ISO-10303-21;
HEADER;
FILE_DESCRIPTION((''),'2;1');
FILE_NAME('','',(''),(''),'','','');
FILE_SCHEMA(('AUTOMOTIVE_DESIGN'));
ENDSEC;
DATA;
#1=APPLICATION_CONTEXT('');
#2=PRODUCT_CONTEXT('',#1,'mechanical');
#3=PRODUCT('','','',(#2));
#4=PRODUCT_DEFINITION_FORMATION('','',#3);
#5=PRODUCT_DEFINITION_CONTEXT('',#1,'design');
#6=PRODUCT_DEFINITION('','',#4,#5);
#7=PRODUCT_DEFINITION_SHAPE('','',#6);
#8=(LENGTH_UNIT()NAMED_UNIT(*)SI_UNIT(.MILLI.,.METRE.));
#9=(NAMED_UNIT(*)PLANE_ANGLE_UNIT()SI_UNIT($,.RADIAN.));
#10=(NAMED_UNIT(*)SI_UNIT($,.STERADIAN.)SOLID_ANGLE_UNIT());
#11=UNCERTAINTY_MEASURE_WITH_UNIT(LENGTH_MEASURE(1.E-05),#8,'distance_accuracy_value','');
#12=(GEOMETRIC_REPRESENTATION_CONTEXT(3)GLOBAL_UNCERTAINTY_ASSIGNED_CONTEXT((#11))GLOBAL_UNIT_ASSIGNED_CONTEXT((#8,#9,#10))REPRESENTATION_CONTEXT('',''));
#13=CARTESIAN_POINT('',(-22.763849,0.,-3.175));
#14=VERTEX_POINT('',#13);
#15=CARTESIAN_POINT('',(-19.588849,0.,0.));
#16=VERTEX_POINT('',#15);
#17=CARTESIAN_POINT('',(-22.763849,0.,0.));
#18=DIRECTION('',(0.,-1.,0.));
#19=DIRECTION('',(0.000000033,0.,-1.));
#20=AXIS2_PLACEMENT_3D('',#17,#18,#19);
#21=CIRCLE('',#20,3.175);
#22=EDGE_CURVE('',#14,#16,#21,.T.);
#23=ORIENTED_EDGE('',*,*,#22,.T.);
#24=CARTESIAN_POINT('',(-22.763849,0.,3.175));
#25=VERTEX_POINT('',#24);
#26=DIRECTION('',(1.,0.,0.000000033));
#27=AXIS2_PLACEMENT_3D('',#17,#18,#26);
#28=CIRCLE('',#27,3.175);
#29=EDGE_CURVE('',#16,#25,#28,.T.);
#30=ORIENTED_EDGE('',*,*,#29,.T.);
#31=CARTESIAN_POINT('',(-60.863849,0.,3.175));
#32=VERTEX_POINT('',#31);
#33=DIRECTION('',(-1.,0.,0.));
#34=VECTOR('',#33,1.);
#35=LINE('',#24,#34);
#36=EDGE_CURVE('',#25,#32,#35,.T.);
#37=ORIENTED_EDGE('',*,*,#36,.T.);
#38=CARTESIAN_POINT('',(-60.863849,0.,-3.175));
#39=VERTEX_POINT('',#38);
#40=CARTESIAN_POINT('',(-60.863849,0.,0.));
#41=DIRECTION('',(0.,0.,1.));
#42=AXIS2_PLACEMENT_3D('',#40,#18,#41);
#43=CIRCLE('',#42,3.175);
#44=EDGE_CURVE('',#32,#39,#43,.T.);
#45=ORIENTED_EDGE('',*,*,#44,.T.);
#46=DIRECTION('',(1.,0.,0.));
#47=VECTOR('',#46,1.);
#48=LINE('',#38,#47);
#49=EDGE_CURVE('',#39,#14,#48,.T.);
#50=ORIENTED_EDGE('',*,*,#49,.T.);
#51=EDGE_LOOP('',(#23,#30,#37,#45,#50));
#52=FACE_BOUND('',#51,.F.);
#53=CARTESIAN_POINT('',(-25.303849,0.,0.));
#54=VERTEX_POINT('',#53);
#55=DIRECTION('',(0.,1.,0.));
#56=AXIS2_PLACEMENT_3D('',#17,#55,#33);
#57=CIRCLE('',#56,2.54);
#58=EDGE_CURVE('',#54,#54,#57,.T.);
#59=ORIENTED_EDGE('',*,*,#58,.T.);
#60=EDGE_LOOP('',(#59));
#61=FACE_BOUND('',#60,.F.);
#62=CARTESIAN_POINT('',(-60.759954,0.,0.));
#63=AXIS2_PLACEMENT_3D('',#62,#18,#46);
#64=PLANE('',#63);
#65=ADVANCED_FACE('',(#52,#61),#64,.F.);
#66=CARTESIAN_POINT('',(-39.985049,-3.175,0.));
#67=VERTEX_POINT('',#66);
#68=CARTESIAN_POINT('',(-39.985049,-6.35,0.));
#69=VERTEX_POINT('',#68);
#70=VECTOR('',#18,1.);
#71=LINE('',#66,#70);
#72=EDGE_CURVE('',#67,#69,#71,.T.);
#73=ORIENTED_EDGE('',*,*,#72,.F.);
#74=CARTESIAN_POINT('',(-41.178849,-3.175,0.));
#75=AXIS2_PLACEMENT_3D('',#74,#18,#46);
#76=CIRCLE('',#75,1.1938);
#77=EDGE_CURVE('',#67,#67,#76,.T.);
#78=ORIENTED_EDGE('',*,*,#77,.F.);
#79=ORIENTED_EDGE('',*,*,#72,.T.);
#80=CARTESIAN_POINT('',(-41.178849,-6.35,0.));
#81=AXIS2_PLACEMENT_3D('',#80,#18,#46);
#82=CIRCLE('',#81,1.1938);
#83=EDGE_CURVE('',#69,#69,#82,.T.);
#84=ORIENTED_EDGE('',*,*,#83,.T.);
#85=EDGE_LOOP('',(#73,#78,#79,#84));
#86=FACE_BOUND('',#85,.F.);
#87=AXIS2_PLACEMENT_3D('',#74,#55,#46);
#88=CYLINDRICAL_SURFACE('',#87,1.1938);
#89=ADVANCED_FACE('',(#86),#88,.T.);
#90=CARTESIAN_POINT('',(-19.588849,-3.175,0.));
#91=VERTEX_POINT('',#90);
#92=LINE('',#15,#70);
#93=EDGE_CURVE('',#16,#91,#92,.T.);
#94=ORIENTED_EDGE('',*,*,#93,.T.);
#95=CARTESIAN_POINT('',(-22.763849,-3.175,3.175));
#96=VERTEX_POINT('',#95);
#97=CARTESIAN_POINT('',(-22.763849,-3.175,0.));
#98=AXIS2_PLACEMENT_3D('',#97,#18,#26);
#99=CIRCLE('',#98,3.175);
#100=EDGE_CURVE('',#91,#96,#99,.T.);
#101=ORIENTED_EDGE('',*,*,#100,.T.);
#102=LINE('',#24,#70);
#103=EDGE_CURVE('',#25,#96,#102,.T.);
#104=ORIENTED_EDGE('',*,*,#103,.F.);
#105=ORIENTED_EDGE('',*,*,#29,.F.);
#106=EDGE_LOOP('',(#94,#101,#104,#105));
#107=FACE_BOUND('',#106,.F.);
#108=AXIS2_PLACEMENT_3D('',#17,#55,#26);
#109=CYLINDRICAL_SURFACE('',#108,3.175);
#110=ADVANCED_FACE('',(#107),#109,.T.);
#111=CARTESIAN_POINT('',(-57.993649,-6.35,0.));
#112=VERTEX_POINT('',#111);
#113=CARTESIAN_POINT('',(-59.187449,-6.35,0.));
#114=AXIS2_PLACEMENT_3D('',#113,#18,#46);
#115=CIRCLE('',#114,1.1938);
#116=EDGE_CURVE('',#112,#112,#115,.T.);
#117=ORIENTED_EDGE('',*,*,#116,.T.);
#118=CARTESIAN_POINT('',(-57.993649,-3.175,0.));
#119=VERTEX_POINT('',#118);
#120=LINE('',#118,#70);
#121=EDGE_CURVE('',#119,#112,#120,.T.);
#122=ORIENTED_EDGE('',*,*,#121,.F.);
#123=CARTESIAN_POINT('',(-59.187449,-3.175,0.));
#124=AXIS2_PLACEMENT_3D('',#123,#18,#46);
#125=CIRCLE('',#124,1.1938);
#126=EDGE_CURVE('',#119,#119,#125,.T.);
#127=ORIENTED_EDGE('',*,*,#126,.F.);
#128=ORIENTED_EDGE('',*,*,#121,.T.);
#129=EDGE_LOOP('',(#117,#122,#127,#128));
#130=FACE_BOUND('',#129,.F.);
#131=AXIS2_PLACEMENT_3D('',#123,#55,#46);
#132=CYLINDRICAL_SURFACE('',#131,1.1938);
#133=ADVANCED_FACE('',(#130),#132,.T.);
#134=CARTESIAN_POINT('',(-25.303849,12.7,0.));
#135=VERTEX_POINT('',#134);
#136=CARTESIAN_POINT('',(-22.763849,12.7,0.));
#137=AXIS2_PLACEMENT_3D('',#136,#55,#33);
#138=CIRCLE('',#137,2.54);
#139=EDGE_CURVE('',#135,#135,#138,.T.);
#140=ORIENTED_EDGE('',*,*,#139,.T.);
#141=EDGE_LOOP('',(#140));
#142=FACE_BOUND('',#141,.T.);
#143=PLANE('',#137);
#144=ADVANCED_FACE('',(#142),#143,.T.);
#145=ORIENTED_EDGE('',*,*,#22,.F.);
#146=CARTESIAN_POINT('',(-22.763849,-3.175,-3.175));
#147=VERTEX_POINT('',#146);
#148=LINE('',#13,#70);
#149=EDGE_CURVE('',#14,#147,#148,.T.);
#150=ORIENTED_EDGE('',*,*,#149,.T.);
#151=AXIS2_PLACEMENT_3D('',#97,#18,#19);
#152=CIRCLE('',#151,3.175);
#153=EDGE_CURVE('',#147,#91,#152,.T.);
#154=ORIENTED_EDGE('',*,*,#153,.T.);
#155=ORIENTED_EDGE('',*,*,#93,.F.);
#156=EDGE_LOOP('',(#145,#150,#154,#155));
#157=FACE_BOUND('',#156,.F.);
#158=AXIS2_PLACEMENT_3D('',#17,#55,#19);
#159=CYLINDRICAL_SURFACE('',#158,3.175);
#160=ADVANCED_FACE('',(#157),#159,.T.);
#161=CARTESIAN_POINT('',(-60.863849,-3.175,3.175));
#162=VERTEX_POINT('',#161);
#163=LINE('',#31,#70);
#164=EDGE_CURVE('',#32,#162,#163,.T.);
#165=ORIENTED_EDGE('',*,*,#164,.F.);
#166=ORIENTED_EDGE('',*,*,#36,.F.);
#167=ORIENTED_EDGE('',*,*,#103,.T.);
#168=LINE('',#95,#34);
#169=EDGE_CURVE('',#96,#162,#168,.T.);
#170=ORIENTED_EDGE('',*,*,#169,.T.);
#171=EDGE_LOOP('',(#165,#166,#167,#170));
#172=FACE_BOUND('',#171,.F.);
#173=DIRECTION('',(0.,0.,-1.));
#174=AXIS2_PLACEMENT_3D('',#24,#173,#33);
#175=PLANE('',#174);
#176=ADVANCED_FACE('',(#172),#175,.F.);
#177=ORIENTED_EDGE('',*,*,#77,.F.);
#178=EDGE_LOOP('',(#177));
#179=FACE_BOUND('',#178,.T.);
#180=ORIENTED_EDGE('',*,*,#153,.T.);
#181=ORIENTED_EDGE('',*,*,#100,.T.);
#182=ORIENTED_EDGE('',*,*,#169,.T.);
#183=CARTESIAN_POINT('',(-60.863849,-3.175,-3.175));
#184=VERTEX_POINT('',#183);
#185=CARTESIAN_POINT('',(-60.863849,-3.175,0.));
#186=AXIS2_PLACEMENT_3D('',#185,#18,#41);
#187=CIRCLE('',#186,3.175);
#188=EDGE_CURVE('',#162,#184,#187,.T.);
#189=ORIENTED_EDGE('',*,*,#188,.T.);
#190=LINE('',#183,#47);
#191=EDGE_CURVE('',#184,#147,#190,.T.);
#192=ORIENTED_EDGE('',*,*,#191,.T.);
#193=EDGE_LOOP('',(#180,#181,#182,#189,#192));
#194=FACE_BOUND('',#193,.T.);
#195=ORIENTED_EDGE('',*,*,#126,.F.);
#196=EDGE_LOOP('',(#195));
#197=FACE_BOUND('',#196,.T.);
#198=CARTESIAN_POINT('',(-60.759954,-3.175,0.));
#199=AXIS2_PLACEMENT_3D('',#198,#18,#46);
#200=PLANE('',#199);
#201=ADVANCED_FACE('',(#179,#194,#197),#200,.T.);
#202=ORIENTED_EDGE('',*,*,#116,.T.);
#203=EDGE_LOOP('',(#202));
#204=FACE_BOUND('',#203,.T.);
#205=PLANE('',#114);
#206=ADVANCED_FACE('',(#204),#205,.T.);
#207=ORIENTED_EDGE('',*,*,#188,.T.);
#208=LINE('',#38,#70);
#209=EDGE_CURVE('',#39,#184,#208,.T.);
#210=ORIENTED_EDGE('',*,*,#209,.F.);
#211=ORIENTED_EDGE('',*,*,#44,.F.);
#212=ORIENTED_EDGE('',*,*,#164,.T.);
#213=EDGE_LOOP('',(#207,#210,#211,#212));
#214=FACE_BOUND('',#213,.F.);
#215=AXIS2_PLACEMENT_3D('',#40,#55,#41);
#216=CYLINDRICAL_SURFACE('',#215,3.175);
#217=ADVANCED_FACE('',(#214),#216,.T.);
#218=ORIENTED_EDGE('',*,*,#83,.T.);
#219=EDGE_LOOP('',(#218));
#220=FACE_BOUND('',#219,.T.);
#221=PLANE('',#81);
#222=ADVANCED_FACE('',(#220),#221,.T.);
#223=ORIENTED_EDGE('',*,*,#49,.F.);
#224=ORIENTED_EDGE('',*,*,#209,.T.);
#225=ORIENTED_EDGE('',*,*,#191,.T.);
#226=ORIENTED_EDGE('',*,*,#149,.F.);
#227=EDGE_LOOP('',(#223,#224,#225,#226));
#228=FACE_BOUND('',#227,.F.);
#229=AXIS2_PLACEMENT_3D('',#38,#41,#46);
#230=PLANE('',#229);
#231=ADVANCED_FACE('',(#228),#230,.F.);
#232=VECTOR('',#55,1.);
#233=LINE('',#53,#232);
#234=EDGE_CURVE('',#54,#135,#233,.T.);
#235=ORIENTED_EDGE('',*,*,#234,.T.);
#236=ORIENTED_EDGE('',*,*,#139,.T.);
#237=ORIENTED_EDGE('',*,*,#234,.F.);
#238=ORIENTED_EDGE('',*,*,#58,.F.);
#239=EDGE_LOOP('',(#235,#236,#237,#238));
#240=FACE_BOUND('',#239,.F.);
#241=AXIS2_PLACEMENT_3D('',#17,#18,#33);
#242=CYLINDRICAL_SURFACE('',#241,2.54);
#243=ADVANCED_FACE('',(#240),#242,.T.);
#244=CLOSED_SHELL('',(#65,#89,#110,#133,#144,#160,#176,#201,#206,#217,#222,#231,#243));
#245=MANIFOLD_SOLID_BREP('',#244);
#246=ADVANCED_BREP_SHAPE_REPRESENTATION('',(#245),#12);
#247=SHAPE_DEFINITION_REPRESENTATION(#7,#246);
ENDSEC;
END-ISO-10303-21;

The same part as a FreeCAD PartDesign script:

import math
import FreeCAD as App
import Part
import Sketcher
Q = App.Units.Quantity

doc = App.newDocument("Part")
body = doc.addObject("PartDesign::Body", "Body")

sketch1 = body.newObject("Sketcher::SketchObject", "Sketch")
sketch1.AttachmentSupport = (doc.getObject("XZ_Plane"), [""])
sketch1.MapMode = "FlatFace"
sketch1.addGeometry([
    Part.ArcOfCircle(Part.Circle(App.Vector(-60.9, 0, 0), App.Vector(0, 0, 1), 3.2), math.radians(90), math.radians(270)),
    Part.LineSegment(App.Vector(-60.9, -3.2, 0), App.Vector(-22.8, -3.2, 0)),
    Part.ArcOfCircle(Part.Circle(App.Vector(-22.8, 0, 0), App.Vector(0, 0, 1), 3.2), math.radians(-90), math.radians(0)),
    Part.ArcOfCircle(Part.Circle(App.Vector(-22.8, 0, 0), App.Vector(0, 0, 1), 3.2), math.radians(0), math.radians(90)),
    Part.LineSegment(App.Vector(-22.8, 3.2, 0), App.Vector(-60.9, 3.2, 0)),
], False)
sketch1.addConstraint([
    Sketcher.Constraint("Tangent", 0, 2, 1, 1),
    Sketcher.Constraint("Tangent", 1, 2, 2, 1),
    Sketcher.Constraint("Tangent", 2, 2, 3, 1),
    Sketcher.Constraint("Tangent", 3, 2, 4, 1),
    Sketcher.Constraint("Tangent", 4, 2, 0, 1),
    Sketcher.Constraint("Horizontal", 1),
    Sketcher.Constraint("Horizontal", 4),
    Sketcher.Constraint("Equal", 0, 2),
    Sketcher.Constraint("PointOnObject", 0, 3, -1),
    Sketcher.Constraint("PointOnObject", 2, 2, -1),
    Sketcher.Constraint("DistanceX", 1, 1, 1, 2, Q("1.5 in")),
    Sketcher.Constraint("Radius", 0, Q("0.125 in")),
    Sketcher.Constraint("DistanceX", 0, 3, -1, 1, Q("60.863849 mm")),
])
pad1 = body.newObject("PartDesign::Pad", "Pad")
pad1.Profile = sketch1
pad1.Length = Q("0.125 in")

sketch2 = body.newObject("Sketcher::SketchObject", "Sketch001")
sketch2.AttachmentSupport = (doc.getObject("XZ_Plane"), [""])
sketch2.MapMode = "FlatFace"
sketch2.AttachmentOffset = App.Placement(App.Vector(0, 0, 0.125 * 25.4), App.Rotation())
sketch2.addGeometry([
    Part.Circle(App.Vector(-41.2, 0, 0), App.Vector(0, 0, 1), 1.2),
    Part.Circle(App.Vector(-59.2, 0, 0), App.Vector(0, 0, 1), 1.2),
], False)
sketch2.addConstraint([
    Sketcher.Constraint("Equal", 0, 1),
    Sketcher.Constraint("PointOnObject", 0, 3, -1),
    Sketcher.Constraint("PointOnObject", 1, 3, -1),
    Sketcher.Constraint("Diameter", 0, Q("0.094 in")),
    Sketcher.Constraint("DistanceX", 1, 3, 0, 3, Q("0.709 in")),
    Sketcher.Constraint("DistanceX", 0, 3, -1, 1, Q("41.178849 mm")),
])
pad2 = body.newObject("PartDesign::Pad", "Pad001")
pad2.Profile = sketch2
pad2.Length = Q("0.125 in")

sketch3 = body.newObject("Sketcher::SketchObject", "Sketch002")
sketch3.AttachmentSupport = (doc.getObject("XZ_Plane"), [""])
sketch3.MapMode = "FlatFace"
sketch3.addGeometry(Part.Circle(App.Vector(-22.8, 0, 0), App.Vector(0, 0, 1), 2.5), False)
sketch3.addConstraint([
    Sketcher.Constraint("PointOnObject", 0, 3, -1),
    Sketcher.Constraint("Diameter", 0, Q("0.2 in")),
    Sketcher.Constraint("DistanceX", 0, 3, -1, 1, Q("22.763849 mm")),
])
pad3 = body.newObject("PartDesign::Pad", "Pad002")
pad3.Profile = sketch3
pad3.Length = Q("0.5 in")
pad3.Reversed = True

doc.recompute()
